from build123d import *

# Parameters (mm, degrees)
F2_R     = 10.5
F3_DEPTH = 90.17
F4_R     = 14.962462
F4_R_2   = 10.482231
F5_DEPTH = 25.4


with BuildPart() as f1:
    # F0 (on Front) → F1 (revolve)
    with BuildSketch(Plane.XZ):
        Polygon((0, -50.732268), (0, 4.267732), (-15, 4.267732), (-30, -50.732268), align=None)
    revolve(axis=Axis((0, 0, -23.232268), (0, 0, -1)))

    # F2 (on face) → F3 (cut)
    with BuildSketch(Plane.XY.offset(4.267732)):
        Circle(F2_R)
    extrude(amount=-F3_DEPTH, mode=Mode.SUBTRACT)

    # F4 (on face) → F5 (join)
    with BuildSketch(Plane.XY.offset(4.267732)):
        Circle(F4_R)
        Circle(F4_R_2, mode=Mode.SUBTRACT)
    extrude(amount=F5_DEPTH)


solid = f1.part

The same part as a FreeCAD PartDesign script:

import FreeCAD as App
import Part
import Sketcher
Q = App.Units.Quantity

doc = App.newDocument("Part")
body = doc.addObject("PartDesign::Body", "Body")

# Sketch on XZ plane
sketch1 = body.newObject("Sketcher::SketchObject", "Sketch")
sketch1.AttachmentSupport = (doc.getObject("XZ_Plane"), [""])
sketch1.MapMode = "FlatFace"
sketch1.addGeometry([
    Part.LineSegment(App.Vector(0, -50.732268, 0), App.Vector(0, 4.267732, 0)),
    Part.LineSegment(App.Vector(0, 4.267732, 0), App.Vector(-15, 4.267732, 0)),
    Part.LineSegment(App.Vector(-15, 4.267732, 0), App.Vector(-30, -50.732268, 0)),
    Part.LineSegment(App.Vector(-30, -50.732268, 0), App.Vector(0, -50.732268, 0)),
], False)
sketch1.addConstraint([
    Sketcher.Constraint("Coincident", 0, 2, 1, 1),
    Sketcher.Constraint("Coincident", 1, 2, 2, 1),
    Sketcher.Constraint("Coincident", 2, 2, 3, 1),
    Sketcher.Constraint("Coincident", 3, 2, 0, 1),
    Sketcher.Constraint("Vertical", 0),
    Sketcher.Constraint("Horizontal", 1),
    Sketcher.Constraint("Horizontal", 3),
    Sketcher.Constraint("PointOnObject", 0, 2, -2),
    Sketcher.Constraint("DistanceX", 1, 2, 1, 1, Q("15 mm")),
    Sketcher.Constraint("DistanceX", 3, 1, 3, 2, Q("30 mm")),
    Sketcher.Constraint("DistanceY", 0, 1, 0, 2, Q("55 mm")),
    Sketcher.Constraint("DistanceY", -1, 1, 0, 2, Q("4.267732 mm")),
])
revolution = body.newObject("PartDesign::Revolution", "Revolution")
revolution.Profile = sketch1
revolution.ReferenceAxis = (sketch1, ["V_Axis"])
revolution.Angle = 360

# Sketch on XY plane
sketch2 = body.newObject("Sketcher::SketchObject", "Sketch001")
sketch2.AttachmentSupport = (doc.getObject("XY_Plane"), [""])
sketch2.MapMode = "FlatFace"
sketch2.AttachmentOffset = App.Placement(App.Vector(0, 0, 4.267732), App.Rotation())
sketch2.addGeometry(Part.Circle(App.Vector(0, 0, 0), App.Vector(0, 0, 1), 10.5), False)
sketch2.addConstraint([
    Sketcher.Constraint("Coincident", 0, 3, -1, 1),
    Sketcher.Constraint("Diameter", 0, Q("21 mm")),
])
pocket1 = body.newObject("PartDesign::Pocket", "Pocket")
pocket1.Profile = sketch2
pocket1.Length = 90.17

# Sketch on XY plane
sketch3 = body.newObject("Sketcher::SketchObject", "Sketch002")
sketch3.AttachmentSupport = (doc.getObject("XY_Plane"), [""])
sketch3.MapMode = "FlatFace"
sketch3.AttachmentOffset = App.Placement(App.Vector(0, 0, 4.267732), App.Rotation())
sketch3.addGeometry([
    Part.Circle(App.Vector(0, 0, 0), App.Vector(0, 0, 1), 14.962462),
    Part.Circle(App.Vector(0, 0, 0), App.Vector(0, 0, 1), 10.482231),
], False)
sketch3.addConstraint([
    Sketcher.Constraint("Coincident", 0, 3, -1, 1),
    Sketcher.Constraint("Coincident", 1, 3, -1, 1),
    Sketcher.Constraint("Diameter", 0, Q("29.924924 mm")),
    Sketcher.Constraint("Diameter", 1, Q("20.964462 mm")),
])
pad1 = body.newObject("PartDesign::Pad", "Pad")
pad1.Profile = sketch3
pad1.Length = 25.4

doc.recompute()
